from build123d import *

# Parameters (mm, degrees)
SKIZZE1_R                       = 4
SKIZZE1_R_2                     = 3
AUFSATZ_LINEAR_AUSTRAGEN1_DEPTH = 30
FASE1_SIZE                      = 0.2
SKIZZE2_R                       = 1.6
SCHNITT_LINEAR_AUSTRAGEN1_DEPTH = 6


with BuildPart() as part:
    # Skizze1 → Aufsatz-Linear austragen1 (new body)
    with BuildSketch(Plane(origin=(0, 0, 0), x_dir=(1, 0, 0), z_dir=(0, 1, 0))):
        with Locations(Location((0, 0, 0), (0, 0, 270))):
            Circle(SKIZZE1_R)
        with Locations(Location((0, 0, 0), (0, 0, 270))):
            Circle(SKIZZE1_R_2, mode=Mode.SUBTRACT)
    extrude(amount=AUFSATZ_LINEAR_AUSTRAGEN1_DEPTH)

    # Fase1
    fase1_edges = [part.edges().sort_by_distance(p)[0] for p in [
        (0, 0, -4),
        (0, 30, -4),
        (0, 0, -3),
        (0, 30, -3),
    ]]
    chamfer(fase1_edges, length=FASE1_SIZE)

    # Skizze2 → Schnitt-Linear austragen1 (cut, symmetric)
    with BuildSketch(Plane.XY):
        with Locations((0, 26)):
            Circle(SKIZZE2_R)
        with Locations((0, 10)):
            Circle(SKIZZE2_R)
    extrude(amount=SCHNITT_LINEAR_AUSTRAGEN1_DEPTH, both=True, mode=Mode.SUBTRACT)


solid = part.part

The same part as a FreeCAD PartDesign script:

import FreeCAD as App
import Part
import Sketcher


def edges_at(feature, points):
    """Names of the edges that pass closest to the given points."""
    edges = feature.Shape.Edges
    near = lambda p: min(range(len(edges)), key=lambda i: edges[i].distToShape(Part.Vertex(*p))[0])
    return sorted({f"Edge{near(p) + 1}" for p in points})

doc = App.newDocument("Part")
body = doc.addObject("PartDesign::Body", "Body")

# Sketch on XZ plane
sketch1 = body.newObject("Sketcher::SketchObject", "Sketch")
sketch1.AttachmentSupport = (doc.getObject("XZ_Plane"), [""])
sketch1.MapMode = "FlatFace"
sketch1.addGeometry(Part.Circle(App.Vector(0, 0, 0), App.Vector(0, 0, 1), 4), False)
sketch1.addGeometry(Part.Circle(App.Vector(0, 0, 0), App.Vector(0, 0, 1), 3), False)
sketch1.addConstraint(Sketcher.Constraint("Coincident", 0, 3, -1, 1))
sketch1.addConstraint(Sketcher.Constraint("Coincident", 1, 3, -1, 1))
sketch1.addConstraint(Sketcher.Constraint("Diameter", 0, 8.0))
sketch1.addConstraint(Sketcher.Constraint("Diameter", 1, 6.0))
pad1 = body.newObject("PartDesign::Pad", "Pad")
pad1.Profile = sketch1
pad1.Length = 30
pad1.Reversed = True
doc.recompute()

chamfer = body.newObject("PartDesign::Chamfer", "Chamfer")
chamfer.Base = (pad1, edges_at(pad1, [
    (0, 0, -4),
    (0, 30, -4),
    (0, 0, -3),
    (0, 30, -3),
]))
chamfer.Size = 0.2

# Sketch on XY plane
sketch2 = body.newObject("Sketcher::SketchObject", "Sketch001")
sketch2.AttachmentSupport = (doc.getObject("XY_Plane"), [""])
sketch2.MapMode = "FlatFace"
sketch2.addGeometry(Part.Circle(App.Vector(0, 26, 0), App.Vector(0, 0, 1), 1.6), False)
sketch2.addGeometry(Part.Circle(App.Vector(0, 10, 0), App.Vector(0, 0, 1), 1.6), False)
sketch2.addConstraint(Sketcher.Constraint("Equal", 0, 1))
sketch2.addConstraint(Sketcher.Constraint("PointOnObject", 0, 3, -2))
sketch2.addConstraint(Sketcher.Constraint("PointOnObject", 1, 3, -2))
sketch2.addConstraint(Sketcher.Constraint("Diameter", 0, 3.2))
sketch2.addConstraint(Sketcher.Constraint("DistanceY", -1, 1, 0, 3, 26.0))
sketch2.addConstraint(Sketcher.Constraint("DistanceY", -1, 1, 1, 3, 10.0))
pocket1 = body.newObject("PartDesign::Pocket", "Pocket")
pocket1.Profile = sketch2
pocket1.Length = 12
pocket1.Midplane = True

doc.recompute()
